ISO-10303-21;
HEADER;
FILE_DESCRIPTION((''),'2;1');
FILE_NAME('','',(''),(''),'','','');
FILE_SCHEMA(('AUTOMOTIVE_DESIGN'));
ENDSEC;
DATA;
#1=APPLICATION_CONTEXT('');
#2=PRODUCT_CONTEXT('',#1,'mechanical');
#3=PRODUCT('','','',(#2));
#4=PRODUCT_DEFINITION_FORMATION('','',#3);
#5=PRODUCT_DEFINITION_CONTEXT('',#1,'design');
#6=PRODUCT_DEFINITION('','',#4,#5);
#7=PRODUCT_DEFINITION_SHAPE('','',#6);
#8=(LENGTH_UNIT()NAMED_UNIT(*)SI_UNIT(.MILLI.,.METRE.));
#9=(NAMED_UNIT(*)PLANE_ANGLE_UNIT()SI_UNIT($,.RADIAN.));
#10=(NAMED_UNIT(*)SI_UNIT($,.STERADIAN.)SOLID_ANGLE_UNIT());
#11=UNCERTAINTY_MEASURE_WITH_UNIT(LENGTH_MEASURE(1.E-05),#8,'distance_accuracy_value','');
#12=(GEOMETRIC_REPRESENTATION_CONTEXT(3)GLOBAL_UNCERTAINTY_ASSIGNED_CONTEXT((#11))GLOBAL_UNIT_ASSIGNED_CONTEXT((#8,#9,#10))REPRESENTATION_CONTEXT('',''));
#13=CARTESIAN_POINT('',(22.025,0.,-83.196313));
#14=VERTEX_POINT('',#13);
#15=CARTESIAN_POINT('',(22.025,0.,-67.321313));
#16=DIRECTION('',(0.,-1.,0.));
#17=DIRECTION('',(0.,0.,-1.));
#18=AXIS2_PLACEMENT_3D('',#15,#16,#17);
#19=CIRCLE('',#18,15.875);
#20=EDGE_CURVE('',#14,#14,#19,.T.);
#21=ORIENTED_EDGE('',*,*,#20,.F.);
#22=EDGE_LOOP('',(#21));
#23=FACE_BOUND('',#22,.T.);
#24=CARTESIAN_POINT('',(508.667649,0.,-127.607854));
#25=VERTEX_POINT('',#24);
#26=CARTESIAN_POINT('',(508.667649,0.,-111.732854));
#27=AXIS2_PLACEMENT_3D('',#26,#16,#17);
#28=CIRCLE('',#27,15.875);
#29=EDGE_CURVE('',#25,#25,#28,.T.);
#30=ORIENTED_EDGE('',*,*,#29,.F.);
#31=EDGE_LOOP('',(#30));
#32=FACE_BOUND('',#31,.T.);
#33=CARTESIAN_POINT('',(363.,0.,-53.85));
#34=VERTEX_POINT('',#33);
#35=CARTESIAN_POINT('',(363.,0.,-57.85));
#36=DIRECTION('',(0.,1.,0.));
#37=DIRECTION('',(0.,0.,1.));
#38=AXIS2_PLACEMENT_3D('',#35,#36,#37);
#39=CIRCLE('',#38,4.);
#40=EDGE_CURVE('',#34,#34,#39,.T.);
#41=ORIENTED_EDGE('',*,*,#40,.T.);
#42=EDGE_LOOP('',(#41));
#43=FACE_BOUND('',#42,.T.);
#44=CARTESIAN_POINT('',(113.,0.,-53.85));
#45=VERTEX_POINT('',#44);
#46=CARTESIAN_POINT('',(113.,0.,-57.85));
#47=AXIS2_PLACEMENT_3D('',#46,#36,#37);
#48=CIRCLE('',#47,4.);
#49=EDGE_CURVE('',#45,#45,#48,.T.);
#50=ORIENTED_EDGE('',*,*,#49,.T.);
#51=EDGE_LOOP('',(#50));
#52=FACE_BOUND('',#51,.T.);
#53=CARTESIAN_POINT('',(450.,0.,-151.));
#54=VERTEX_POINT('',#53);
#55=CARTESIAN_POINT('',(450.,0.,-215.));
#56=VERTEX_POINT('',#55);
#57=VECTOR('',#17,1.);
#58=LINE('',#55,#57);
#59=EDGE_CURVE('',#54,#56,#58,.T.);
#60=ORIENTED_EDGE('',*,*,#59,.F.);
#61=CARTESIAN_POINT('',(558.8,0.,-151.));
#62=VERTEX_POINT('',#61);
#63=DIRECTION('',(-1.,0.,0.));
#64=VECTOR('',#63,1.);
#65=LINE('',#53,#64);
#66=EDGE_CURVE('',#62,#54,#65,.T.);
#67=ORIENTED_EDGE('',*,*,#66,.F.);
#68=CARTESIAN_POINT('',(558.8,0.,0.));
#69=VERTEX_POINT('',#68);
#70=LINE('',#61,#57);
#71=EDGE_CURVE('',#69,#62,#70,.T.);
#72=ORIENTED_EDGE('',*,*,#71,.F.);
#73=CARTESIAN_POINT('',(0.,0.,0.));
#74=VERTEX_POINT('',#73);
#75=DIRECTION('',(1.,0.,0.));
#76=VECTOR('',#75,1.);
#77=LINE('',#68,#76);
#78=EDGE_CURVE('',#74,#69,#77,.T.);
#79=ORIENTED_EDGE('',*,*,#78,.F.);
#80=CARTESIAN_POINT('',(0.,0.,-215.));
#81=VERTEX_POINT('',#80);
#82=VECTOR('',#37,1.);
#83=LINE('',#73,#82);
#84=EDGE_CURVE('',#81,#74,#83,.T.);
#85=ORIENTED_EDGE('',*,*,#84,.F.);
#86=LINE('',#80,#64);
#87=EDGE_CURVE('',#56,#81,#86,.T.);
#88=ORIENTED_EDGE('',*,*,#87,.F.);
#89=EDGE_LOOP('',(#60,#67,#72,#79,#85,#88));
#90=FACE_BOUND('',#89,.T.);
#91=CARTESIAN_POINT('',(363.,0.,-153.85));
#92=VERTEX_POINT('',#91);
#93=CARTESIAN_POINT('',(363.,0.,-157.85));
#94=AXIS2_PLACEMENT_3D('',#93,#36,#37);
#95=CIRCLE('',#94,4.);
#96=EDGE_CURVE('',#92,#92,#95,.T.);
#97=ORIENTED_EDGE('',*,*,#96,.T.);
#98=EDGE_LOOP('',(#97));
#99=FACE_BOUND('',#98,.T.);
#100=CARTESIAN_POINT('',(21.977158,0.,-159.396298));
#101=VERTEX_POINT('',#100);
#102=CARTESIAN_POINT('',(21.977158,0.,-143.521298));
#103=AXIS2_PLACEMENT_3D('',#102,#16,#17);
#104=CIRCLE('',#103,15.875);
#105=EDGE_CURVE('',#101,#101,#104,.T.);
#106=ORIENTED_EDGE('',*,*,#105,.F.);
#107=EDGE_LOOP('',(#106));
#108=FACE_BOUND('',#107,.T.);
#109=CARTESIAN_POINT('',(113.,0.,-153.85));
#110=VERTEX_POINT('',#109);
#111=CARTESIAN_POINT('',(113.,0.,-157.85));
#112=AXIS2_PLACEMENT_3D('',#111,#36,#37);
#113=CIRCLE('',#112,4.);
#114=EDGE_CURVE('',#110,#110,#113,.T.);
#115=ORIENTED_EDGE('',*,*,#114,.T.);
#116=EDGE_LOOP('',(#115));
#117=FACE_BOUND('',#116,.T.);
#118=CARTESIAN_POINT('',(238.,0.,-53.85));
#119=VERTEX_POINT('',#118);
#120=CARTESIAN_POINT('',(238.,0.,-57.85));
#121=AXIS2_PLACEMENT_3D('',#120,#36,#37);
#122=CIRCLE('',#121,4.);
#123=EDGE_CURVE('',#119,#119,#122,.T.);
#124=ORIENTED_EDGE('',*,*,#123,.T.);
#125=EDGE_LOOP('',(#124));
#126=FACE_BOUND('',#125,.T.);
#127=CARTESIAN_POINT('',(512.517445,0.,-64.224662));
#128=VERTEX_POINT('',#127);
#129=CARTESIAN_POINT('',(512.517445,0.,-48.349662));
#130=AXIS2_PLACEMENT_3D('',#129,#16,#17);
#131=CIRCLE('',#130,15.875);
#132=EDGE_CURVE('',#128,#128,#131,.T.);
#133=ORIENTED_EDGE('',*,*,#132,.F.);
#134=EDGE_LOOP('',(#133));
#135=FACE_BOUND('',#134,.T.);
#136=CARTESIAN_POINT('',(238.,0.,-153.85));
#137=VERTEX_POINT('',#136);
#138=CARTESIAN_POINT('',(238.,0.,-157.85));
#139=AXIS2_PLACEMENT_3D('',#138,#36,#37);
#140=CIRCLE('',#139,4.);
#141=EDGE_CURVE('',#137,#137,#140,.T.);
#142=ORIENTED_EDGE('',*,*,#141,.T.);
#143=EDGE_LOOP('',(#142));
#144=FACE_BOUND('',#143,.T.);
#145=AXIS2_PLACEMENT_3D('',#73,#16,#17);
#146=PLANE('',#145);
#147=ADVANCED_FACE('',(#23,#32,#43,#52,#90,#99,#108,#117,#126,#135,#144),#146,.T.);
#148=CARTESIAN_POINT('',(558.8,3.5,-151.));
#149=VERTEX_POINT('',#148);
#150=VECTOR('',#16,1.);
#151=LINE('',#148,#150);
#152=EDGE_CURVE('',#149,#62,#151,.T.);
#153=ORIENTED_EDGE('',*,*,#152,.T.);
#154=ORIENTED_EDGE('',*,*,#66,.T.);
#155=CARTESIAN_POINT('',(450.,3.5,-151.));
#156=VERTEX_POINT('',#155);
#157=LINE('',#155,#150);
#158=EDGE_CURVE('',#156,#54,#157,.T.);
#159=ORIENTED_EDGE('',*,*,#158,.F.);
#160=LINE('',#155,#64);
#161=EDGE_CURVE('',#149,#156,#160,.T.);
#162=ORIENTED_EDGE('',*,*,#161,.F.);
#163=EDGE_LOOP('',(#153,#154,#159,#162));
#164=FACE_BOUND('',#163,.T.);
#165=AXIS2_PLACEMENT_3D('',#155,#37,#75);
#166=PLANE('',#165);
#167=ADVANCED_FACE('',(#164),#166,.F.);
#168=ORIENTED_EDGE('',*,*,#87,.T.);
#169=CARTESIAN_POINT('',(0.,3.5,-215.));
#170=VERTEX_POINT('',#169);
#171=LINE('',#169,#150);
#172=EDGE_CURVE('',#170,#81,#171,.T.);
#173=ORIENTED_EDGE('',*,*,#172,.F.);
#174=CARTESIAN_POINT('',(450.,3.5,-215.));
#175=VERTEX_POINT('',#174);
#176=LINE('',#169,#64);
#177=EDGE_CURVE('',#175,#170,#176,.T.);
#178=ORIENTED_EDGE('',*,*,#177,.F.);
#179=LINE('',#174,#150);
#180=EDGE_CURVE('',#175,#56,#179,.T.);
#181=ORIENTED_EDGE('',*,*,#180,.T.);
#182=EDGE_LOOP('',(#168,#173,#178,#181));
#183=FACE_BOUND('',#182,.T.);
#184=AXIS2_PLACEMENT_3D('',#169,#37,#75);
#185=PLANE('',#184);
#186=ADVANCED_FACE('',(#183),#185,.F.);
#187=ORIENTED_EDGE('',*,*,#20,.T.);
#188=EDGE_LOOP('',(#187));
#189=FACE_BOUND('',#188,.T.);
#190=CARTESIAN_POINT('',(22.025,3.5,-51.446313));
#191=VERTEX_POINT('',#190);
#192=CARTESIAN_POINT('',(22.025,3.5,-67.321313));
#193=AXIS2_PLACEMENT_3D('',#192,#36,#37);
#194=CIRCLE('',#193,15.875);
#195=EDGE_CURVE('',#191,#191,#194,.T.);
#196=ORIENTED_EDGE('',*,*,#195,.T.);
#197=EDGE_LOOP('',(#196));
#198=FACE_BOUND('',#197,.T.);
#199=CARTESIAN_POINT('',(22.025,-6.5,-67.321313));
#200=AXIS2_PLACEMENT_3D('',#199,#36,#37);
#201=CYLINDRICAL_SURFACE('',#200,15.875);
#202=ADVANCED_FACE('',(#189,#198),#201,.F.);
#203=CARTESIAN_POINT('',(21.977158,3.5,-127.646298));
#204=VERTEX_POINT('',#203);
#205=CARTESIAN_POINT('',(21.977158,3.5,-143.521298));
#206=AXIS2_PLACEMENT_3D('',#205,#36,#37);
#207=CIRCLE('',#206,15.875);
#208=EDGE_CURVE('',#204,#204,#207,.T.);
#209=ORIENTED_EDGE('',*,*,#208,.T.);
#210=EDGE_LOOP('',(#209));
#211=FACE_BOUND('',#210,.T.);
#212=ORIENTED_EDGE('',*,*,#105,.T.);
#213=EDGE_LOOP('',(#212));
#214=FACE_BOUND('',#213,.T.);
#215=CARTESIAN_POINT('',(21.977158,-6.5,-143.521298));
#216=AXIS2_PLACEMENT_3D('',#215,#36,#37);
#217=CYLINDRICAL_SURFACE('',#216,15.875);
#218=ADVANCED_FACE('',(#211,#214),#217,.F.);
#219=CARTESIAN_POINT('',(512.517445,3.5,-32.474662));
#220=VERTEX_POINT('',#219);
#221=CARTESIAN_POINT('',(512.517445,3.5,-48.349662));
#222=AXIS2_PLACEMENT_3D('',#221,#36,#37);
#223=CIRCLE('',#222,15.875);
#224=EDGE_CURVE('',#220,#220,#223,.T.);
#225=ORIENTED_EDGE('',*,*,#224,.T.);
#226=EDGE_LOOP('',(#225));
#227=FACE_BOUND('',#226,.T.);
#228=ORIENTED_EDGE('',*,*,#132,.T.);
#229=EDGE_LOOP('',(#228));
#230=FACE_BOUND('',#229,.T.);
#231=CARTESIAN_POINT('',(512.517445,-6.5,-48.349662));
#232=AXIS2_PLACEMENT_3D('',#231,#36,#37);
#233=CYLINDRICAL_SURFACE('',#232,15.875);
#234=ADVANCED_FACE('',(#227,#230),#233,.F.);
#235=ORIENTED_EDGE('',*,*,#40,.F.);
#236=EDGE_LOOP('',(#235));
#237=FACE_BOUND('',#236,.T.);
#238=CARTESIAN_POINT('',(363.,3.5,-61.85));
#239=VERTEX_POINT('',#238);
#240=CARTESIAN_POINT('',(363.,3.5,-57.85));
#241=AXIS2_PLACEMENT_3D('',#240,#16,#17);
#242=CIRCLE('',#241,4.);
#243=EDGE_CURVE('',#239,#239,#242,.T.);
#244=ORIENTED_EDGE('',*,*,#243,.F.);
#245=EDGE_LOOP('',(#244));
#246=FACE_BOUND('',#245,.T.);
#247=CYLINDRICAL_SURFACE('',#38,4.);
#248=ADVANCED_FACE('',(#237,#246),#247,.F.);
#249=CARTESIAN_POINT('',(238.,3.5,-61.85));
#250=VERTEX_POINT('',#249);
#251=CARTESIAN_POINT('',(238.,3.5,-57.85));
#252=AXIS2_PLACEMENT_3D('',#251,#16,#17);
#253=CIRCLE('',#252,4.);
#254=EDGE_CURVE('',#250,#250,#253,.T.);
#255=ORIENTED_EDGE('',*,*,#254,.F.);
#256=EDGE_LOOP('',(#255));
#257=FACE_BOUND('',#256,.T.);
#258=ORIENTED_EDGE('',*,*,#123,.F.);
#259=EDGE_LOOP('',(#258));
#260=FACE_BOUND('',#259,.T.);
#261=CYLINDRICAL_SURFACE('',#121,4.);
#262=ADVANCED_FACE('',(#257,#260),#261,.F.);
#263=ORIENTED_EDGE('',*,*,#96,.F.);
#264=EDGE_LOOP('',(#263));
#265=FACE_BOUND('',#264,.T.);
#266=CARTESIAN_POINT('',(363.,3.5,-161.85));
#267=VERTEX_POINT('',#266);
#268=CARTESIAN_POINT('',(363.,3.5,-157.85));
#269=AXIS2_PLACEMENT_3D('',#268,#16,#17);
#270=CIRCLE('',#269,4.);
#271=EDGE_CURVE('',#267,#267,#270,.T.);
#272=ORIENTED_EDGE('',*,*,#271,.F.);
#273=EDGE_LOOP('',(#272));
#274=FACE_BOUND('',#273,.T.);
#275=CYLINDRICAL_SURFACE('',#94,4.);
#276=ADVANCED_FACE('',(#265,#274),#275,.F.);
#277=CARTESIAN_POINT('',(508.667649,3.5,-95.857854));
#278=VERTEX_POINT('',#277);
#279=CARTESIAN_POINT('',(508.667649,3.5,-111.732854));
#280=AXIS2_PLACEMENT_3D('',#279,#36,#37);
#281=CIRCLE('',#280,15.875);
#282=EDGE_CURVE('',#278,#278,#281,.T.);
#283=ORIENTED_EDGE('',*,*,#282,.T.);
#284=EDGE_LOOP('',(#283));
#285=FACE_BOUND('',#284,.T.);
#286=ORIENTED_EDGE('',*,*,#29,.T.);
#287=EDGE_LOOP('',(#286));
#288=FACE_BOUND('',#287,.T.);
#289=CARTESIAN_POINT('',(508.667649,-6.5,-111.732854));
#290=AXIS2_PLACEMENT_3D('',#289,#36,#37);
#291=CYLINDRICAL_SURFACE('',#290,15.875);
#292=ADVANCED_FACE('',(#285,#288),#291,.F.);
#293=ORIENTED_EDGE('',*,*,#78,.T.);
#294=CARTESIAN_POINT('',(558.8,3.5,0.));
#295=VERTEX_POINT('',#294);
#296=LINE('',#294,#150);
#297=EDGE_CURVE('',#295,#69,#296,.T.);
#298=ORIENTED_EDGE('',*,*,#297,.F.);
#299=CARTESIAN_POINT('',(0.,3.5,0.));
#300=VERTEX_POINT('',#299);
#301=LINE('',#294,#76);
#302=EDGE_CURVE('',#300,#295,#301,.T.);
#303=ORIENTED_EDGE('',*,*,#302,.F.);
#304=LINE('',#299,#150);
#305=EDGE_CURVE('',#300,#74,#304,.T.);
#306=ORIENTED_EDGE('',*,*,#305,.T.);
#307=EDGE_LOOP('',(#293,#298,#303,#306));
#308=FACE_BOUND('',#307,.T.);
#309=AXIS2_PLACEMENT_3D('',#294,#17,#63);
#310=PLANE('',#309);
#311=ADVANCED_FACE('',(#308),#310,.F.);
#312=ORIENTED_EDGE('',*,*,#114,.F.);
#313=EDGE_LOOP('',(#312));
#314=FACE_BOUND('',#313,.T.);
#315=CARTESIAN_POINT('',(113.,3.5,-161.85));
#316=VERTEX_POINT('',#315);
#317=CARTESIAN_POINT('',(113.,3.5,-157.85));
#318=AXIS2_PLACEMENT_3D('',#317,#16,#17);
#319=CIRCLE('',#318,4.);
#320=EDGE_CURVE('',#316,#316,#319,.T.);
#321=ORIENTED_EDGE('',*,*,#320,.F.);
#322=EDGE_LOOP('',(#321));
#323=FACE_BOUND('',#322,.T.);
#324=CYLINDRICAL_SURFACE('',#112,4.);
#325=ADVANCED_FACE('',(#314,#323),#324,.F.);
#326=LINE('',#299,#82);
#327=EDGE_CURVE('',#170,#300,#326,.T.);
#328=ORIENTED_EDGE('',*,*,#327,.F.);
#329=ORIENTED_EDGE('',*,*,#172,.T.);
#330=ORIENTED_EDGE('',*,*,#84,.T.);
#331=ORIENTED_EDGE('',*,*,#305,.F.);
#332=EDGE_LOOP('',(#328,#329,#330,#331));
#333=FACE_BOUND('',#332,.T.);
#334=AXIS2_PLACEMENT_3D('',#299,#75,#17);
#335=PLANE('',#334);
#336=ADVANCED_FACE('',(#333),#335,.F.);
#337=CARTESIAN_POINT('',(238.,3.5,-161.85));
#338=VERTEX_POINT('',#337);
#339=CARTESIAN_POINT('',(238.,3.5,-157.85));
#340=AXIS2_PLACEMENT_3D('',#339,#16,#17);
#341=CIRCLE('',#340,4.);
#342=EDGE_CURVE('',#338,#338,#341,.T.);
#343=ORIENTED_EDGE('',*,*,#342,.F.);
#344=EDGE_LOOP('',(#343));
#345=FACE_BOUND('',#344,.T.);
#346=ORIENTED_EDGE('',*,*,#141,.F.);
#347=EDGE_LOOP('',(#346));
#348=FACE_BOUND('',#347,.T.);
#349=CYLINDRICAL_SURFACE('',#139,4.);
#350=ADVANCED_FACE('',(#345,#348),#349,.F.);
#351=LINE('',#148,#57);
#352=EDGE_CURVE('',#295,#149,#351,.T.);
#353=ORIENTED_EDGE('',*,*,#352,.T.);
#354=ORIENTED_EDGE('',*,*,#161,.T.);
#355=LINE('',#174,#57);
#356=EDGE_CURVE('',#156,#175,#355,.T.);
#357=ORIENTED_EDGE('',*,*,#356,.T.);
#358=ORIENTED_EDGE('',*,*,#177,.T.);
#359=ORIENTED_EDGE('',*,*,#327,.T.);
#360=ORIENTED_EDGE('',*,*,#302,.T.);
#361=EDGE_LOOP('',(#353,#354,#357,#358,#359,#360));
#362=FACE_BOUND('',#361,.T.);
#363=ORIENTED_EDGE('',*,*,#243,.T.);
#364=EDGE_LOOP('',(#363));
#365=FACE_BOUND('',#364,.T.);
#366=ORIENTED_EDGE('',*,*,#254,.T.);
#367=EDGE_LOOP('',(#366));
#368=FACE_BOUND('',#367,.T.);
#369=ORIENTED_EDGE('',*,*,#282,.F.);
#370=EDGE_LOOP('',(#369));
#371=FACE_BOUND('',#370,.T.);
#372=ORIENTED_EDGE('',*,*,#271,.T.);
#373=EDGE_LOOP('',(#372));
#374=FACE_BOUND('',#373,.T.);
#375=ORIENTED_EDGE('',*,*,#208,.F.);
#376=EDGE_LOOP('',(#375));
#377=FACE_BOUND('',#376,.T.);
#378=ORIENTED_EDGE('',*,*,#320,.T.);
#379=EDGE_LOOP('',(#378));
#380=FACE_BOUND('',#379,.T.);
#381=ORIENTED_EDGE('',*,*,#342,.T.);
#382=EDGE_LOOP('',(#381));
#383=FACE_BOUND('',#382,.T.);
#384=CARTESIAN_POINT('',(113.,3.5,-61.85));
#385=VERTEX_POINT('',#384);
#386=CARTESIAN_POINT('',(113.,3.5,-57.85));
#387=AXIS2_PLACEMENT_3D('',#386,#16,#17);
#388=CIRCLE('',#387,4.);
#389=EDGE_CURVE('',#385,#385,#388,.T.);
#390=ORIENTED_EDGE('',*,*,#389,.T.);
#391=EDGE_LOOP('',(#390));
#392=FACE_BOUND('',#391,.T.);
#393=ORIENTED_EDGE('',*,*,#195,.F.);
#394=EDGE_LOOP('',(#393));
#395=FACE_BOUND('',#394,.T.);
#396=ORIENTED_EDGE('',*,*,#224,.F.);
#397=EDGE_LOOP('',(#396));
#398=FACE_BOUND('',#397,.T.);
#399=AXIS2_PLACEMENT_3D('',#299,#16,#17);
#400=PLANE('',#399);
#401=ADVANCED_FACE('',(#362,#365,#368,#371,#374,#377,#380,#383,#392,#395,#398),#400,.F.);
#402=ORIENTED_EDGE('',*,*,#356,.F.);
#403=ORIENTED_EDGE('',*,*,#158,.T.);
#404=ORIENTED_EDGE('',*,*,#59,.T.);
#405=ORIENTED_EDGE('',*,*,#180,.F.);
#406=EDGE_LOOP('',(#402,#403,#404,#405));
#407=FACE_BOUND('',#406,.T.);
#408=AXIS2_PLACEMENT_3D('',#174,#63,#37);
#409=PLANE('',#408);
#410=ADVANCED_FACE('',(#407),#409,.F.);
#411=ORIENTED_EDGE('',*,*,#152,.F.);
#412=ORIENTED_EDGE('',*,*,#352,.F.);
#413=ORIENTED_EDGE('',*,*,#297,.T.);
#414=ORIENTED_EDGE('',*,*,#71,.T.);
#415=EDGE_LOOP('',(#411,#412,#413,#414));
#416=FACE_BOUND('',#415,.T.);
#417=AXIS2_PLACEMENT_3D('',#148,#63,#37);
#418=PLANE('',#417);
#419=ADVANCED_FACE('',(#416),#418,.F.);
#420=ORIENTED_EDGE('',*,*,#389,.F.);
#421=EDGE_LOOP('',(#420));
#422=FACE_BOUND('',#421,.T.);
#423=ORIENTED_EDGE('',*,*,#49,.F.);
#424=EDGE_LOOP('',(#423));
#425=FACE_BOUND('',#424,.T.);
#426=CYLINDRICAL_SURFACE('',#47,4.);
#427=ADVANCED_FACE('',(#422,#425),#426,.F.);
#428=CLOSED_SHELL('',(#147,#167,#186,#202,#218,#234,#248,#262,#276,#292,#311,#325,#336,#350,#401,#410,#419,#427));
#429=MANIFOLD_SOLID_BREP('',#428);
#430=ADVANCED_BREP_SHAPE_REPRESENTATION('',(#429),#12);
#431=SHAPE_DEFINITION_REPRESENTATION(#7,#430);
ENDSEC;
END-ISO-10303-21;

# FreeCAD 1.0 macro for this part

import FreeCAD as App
import Part
import Sketcher

doc = App.newDocument("Part")
body = doc.addObject("PartDesign::Body", "Body")

# Sketch on XZ plane
sketch1 = body.newObject("Sketcher::SketchObject", "Sketch")
sketch1.AttachmentSupport = (doc.getObject("XZ_Plane"), [""])
sketch1.MapMode = "FlatFace"
sketch1.addGeometry([
    Part.LineSegment(App.Vector(0, -215, 0), App.Vector(0, 0, 0)),  # 0
    Part.LineSegment(App.Vector(0, 0, 0), App.Vector(559, 0, 0)),  # 1
    Part.LineSegment(App.Vector(559, 0, 0), App.Vector(559, -151, 0)),  # 2
    Part.LineSegment(App.Vector(559, -151, 0), App.Vector(450, -151, 0)),  # 3
    Part.LineSegment(App.Vector(450, -151, 0), App.Vector(450, -215, 0)),  # 4
    Part.LineSegment(App.Vector(450, -215, 0), App.Vector(0, -215, 0)),  # 5
], False)
sketch1.addConstraint([
    Sketcher.Constraint("Coincident", 0, 2, 1, 1),
    Sketcher.Constraint("Coincident", 1, 2, 2, 1),
    Sketcher.Constraint("Coincident", 2, 2, 3, 1),
    Sketcher.Constraint("Coincident", 3, 2, 4, 1),
    Sketcher.Constraint("Coincident", 4, 2, 5, 1),
    Sketcher.Constraint("Coincident", 5, 2, 0, 1),
    Sketcher.Constraint("Vertical", 0),
    Sketcher.Constraint("Horizontal", 1),
    Sketcher.Constraint("Vertical", 2),
    Sketcher.Constraint("Horizontal", 3),
    Sketcher.Constraint("Vertical", 4),
    Sketcher.Constraint("Horizontal", 5),
    Sketcher.Constraint("Coincident", 0, 2, -1, 1),
    Sketcher.Constraint("DistanceX", 5, 2, 5, 1, 450.0),
    Sketcher.Constraint("DistanceY", 0, 1, 0, 2, 215.0),
    Sketcher.Constraint("DistanceY", 2, 2, 2, 1, 151.0),
    Sketcher.Constraint("DistanceX", 1, 1, 1, 2, 558.8),
])
pad1 = body.newObject("PartDesign::Pad", "Pad")
pad1.Profile = sketch1
pad1.Length = 3.5
pad1.Reversed = True

# Sketch on XZ plane
sketch2 = body.newObject("Sketcher::SketchObject", "Sketch001")
sketch2.AttachmentSupport = (doc.getObject("XZ_Plane"), [""])
sketch2.MapMode = "FlatFace"
sketch2.AttachmentOffset = App.Placement(App.Vector(0, 0, -3.5), App.Rotation())
sketch2.addGeometry([
    Part.Circle(App.Vector(113, -157.8, 0), App.Vector(0, 0, 1), 4),  # 0
    Part.Circle(App.Vector(238, -157.8, 0), App.Vector(0, 0, 1), 4),  # 1
    Part.Circle(App.Vector(363, -157.8, 0), App.Vector(0, 0, 1), 4),  # 2
    Part.Circle(App.Vector(363, -57.9, 0), App.Vector(0, 0, 1), 4),  # 3
    Part.Circle(App.Vector(238, -57.9, 0), App.Vector(0, 0, 1), 4),  # 4
    Part.Circle(App.Vector(113, -57.9, 0), App.Vector(0, 0, 1), 4),  # 5
], False)
sketch2.addConstraint([
    Sketcher.Constraint("Equal", 0, 1),
    Sketcher.Constraint("Equal", 1, 2),
    Sketcher.Constraint("Equal", 2, 3),
    Sketcher.Constraint("Equal", 3, 4),
    Sketcher.Constraint("Equal", 4, 5),
    Sketcher.Constraint("Horizontal", 0, 3, 1, 3),
    Sketcher.Constraint("Horizontal", 1, 3, 2, 3),
    Sketcher.Constraint("Horizontal", 3, 3, 4, 3),
    Sketcher.Constraint("Horizontal", 4, 3, 5, 3),
    Sketcher.Constraint("Vertical", 2, 3, 3, 3),
    Sketcher.Constraint("Vertical", 1, 3, 4, 3),
    Sketcher.Constraint("Vertical", 0, 3, 5, 3),
    Sketcher.Constraint("Diameter", 0, 8.0),
    Sketcher.Constraint("DistanceX", -1, 1, 0, 3, 113.0),
    Sketcher.Constraint("DistanceX", -1, 1, 1, 3, 238.0),
    Sketcher.Constraint("DistanceX", -1, 1, 2, 3, 363.0),
    Sketcher.Constraint("DistanceY", 2, 3, 3, 3, 100.0),
    Sketcher.Constraint("DistanceY", 0, 3, -1, 1, 157.85),
])
pocket1 = body.newObject("PartDesign::Pocket", "Pocket")
pocket1.Profile = sketch2
pocket1.Type = "ThroughAll"
pocket1.Midplane = True

# Sketch on XZ plane
sketch3 = body.newObject("Sketcher::SketchObject", "Sketch002")
sketch3.AttachmentSupport = (doc.getObject("XZ_Plane"), [""])
sketch3.MapMode = "FlatFace"
sketch3.AttachmentOffset = App.Placement(App.Vector(0, 0, -3.5), App.Rotation())
sketch3.addGeometry([
    Part.Circle(App.Vector(22, -144, 0), App.Vector(0, 0, 1), 16),
    Part.Circle(App.Vector(22, -67, 0), App.Vector(0, 0, 1), 16),
    Part.Circle(App.Vector(513, -48, 0), App.Vector(0, 0, 1), 16),
    Part.Circle(App.Vector(509, -112, 0), App.Vector(0, 0, 1), 16),
], False)
sketch3.addConstraint([
    Sketcher.Constraint("Equal", 0, 1),
    Sketcher.Constraint("Equal", 1, 2),
    Sketcher.Constraint("Equal", 2, 3),
    Sketcher.Constraint("Diameter", 0, 31.75),
    Sketcher.Constraint("DistanceX", -1, 1, 1, 3, 22.025),
    Sketcher.Constraint("DistanceX", -1, 1, 0, 3, 21.977158),
    Sketcher.Constraint("DistanceY", 2, 3, -1, 1, 48.349662),
    Sketcher.Constraint("DistanceX", -1, 1, 3, 3, 508.667649),
    Sketcher.Constraint("DistanceY", 1, 3, 2, 3, 18.971651),
    Sketcher.Constraint("DistanceY", 3, 3, 1, 3, 44.411541),
    Sketcher.Constraint("DistanceY", 0, 3, -1, 1, 143.521298),
    Sketcher.Constraint("DistanceX", -1, 1, 2, 3, 512.517445),
])
pocket2 = body.newObject("PartDesign::Pocket", "Pocket001")
pocket2.Profile = sketch3
pocket2.Length = 10
pocket2.Reversed = True

doc.recompute()
